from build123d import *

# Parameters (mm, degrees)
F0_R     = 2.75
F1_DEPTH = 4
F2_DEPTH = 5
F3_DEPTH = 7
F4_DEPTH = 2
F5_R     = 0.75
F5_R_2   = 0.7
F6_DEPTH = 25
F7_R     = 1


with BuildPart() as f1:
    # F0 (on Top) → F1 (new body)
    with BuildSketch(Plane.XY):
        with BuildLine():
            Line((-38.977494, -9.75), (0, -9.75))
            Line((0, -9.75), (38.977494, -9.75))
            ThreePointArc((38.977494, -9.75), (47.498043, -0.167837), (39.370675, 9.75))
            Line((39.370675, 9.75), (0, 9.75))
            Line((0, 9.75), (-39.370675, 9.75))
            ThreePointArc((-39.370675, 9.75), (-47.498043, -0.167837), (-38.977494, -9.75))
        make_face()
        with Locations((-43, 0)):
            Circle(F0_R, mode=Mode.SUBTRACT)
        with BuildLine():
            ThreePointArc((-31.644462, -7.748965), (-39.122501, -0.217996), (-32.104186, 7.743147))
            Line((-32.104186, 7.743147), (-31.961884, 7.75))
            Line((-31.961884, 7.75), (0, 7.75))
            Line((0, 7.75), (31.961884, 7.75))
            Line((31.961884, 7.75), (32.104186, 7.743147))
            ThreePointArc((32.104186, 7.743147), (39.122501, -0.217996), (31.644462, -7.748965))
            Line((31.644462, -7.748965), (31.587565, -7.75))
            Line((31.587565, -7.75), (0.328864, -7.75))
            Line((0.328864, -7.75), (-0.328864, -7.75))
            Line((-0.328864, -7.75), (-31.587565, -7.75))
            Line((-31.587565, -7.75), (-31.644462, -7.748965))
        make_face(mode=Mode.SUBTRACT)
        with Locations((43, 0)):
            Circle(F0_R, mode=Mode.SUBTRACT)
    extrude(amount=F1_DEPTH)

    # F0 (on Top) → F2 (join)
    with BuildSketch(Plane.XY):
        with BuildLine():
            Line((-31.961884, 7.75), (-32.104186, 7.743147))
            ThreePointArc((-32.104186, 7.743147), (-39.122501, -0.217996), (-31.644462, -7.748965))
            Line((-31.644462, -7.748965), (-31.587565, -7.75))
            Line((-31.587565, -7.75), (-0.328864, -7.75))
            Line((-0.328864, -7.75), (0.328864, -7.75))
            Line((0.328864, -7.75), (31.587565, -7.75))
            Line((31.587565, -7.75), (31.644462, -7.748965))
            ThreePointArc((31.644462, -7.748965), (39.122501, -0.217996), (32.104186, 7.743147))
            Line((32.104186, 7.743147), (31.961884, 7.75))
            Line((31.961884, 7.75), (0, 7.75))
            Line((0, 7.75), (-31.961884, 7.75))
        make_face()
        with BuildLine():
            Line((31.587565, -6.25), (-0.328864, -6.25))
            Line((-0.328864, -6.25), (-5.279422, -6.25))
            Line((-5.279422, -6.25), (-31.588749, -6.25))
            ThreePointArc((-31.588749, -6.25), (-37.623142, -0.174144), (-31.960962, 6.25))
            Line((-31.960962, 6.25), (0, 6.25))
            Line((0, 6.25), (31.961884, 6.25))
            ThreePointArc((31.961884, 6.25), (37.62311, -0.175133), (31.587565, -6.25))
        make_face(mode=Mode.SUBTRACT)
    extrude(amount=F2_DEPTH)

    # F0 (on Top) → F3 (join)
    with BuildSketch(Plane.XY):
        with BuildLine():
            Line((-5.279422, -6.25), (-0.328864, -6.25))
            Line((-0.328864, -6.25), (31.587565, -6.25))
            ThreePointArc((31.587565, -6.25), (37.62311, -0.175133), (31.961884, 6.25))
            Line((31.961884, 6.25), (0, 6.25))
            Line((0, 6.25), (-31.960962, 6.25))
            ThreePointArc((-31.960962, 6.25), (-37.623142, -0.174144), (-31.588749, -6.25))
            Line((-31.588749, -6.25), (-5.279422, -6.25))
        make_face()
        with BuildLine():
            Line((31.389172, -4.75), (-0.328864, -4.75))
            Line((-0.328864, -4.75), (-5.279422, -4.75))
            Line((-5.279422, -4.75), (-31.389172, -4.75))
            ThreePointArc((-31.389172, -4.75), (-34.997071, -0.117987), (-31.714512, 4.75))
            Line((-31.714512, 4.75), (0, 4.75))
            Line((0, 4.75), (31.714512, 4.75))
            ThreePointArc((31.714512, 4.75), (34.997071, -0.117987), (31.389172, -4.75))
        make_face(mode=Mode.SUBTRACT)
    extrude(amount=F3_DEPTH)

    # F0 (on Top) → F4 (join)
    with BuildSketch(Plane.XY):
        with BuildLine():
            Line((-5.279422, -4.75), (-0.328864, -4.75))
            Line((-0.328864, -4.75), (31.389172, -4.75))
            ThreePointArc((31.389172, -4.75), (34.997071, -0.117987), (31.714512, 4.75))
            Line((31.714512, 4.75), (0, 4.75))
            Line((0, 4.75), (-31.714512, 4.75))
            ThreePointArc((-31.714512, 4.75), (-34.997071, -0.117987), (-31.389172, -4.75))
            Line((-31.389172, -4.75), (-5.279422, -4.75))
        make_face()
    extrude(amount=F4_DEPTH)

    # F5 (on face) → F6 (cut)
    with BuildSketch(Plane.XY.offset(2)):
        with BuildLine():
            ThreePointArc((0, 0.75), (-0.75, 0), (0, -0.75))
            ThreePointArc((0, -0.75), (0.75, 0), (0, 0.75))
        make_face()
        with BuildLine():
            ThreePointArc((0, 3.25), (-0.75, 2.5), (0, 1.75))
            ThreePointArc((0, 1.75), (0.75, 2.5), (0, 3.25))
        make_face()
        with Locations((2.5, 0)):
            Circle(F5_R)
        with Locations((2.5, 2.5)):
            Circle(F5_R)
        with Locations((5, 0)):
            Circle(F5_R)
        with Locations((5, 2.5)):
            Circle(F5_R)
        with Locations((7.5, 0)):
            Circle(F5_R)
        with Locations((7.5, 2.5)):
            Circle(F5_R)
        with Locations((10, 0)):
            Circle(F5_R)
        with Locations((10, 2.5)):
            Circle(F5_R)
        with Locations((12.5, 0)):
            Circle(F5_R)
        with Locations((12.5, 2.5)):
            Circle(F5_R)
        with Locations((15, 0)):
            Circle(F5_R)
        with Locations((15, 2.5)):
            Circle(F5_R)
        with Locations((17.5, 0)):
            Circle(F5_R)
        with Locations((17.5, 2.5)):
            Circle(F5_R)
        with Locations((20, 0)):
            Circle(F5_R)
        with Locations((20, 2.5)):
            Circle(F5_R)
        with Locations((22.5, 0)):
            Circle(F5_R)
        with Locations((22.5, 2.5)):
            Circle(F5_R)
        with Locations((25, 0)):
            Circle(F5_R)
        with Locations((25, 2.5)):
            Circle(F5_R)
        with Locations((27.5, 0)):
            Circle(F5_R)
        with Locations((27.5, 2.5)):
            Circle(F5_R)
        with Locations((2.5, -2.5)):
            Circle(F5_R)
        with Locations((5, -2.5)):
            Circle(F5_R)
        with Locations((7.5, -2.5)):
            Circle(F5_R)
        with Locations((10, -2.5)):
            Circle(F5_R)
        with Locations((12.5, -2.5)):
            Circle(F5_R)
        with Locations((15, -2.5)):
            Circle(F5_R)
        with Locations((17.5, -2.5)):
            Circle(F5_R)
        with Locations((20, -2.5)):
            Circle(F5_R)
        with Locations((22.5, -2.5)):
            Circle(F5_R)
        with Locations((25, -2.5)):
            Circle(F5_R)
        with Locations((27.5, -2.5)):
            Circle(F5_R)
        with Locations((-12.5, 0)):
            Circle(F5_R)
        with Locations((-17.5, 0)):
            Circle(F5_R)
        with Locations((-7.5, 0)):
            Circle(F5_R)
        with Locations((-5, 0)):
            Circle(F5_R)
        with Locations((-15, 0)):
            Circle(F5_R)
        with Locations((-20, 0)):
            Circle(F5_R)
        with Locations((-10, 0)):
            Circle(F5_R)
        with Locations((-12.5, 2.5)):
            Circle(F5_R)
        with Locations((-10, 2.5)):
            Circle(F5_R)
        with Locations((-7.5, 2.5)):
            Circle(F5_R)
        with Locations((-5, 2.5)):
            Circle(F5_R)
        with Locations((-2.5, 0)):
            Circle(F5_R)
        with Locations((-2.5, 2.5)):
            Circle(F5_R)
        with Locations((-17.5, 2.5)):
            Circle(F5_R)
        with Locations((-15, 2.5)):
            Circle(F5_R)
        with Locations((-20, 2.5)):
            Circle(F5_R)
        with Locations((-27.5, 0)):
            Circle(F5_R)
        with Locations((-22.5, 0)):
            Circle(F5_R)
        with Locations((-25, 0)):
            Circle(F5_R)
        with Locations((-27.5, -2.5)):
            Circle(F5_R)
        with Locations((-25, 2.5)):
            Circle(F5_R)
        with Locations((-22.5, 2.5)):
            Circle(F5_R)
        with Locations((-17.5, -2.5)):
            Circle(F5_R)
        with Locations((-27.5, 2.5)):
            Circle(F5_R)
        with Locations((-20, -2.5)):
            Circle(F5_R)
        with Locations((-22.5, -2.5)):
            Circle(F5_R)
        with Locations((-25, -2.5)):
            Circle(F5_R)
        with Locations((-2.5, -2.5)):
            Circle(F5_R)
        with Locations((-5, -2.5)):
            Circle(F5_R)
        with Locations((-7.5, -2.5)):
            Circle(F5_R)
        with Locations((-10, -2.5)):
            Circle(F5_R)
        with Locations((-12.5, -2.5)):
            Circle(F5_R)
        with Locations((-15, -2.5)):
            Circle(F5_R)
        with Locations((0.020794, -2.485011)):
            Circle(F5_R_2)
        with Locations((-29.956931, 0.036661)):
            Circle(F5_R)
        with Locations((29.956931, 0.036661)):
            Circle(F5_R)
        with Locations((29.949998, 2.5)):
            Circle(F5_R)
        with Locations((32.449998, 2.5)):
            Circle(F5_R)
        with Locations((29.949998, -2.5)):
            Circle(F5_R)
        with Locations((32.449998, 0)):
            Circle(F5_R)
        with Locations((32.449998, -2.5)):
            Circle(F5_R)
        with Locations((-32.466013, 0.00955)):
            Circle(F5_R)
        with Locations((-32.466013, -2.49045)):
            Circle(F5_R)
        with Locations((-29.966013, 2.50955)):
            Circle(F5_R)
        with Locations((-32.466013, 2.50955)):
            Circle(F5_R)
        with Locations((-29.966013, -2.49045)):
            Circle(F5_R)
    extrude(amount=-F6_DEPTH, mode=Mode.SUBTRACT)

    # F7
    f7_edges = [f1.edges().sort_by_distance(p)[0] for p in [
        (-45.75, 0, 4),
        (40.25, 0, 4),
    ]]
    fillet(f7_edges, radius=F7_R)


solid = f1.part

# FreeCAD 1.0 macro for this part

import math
import FreeCAD as App
import Part
import Sketcher
from FreeCAD import Vector


def edges_at(feature, points):
    """Names of the edges that pass closest to the given points."""
    edges = feature.Shape.Edges
    near = lambda p: min(range(len(edges)), key=lambda i: edges[i].distToShape(Part.Vertex(*p))[0])
    return sorted({f"Edge{near(p) + 1}" for p in points})

doc = App.newDocument("Part")
body = doc.addObject("PartDesign::Body", "Body")

# Sketch on XY plane
sketch1 = body.newObject("Sketcher::SketchObject", "Sketch")
sketch1.AttachmentSupport = (doc.getObject("XY_Plane"), [""])
sketch1.MapMode = "FlatFace"
sketch1.addGeometry([
    Part.LineSegment(Vector(-38.98, -9.75, 0), Vector(38.98, -9.75, 0)),  # 0
    Part.ArcOfCircle(Part.Circle(Vector(37.63, 0.03, 0), Vector(0, 0, 1), 9.87), math.radians(-82), math.radians(80)),  # 1
    Part.LineSegment(Vector(39.37, 9.75, 0), Vector(-39.37, 9.75, 0)),  # 2
    Part.ArcOfCircle(Part.Circle(Vector(-37.63, 0.03, 0), Vector(0, 0, 1), 9.87), math.radians(100), math.radians(262)),  # 3
    Part.Circle(Vector(-43, 0, 0), Vector(0, 0, 1), 2.75),  # 4
    Part.LineSegment(Vector(-31.59, -7.75, 0), Vector(-31.64, -7.75, 0)),  # 5
    Part.ArcOfCircle(Part.Circle(Vector(-31.36, 0.01, 0), Vector(0, 0, 1), 7.77), math.radians(96), math.radians(268)),  # 6
    Part.LineSegment(Vector(-32.1, 7.74, 0), Vector(-31.96, 7.75, 0)),  # 7
    Part.LineSegment(Vector(-31.96, 7.75, 0), Vector(31.96, 7.75, 0)),  # 8
    Part.LineSegment(Vector(31.96, 7.75, 0), Vector(32.1, 7.74, 0)),  # 9
    Part.ArcOfCircle(Part.Circle(Vector(31.36, 0.01, 0), Vector(0, 0, 1), 7.77), math.radians(-88), math.radians(84)),  # 10
    Part.LineSegment(Vector(31.64, -7.75, 0), Vector(31.59, -7.75, 0)),  # 11
    Part.LineSegment(Vector(31.59, -7.75, 0), Vector(-31.59, -7.75, 0)),  # 12
    Part.Circle(Vector(43, 0, 0), Vector(0, 0, 1), 2.75),  # 13
], False)
sketch1.addConstraint([
    Sketcher.Constraint("Coincident", 0, 2, 1, 1),
    Sketcher.Constraint("Coincident", 1, 2, 2, 1),
    Sketcher.Constraint("Coincident", 2, 2, 3, 1),
    Sketcher.Constraint("Coincident", 3, 2, 0, 1),
    Sketcher.Constraint("Coincident", 5, 2, 6, 2),
    Sketcher.Constraint("Coincident", 6, 1, 7, 1),
    Sketcher.Constraint("Coincident", 7, 2, 8, 1),
    Sketcher.Constraint("Coincident", 8, 2, 9, 1),
    Sketcher.Constraint("Coincident", 9, 2, 10, 2),
    Sketcher.Constraint("Coincident", 10, 1, 11, 1),
    Sketcher.Constraint("Coincident", 11, 2, 12, 1),
    Sketcher.Constraint("Coincident", 12, 2, 5, 1),
    Sketcher.Constraint("Horizontal", 0),
    Sketcher.Constraint("Horizontal", 2),
    Sketcher.Constraint("Horizontal", 8),
    Sketcher.Constraint("Horizontal", 12),
    Sketcher.Constraint("Equal", 1, 3),
    Sketcher.Constraint("Equal", 6, 10),
    Sketcher.Constraint("Equal", 4, 13),
    Sketcher.Constraint("Symmetric", 4, 3, 13, 3, -1, 1),
    Sketcher.Constraint("Symmetric", 1, 3, 3, 3, -2),
    Sketcher.Constraint("Symmetric", 6, 3, 10, 3, -2),
    Sketcher.Constraint("PointOnObject", 4, 3, -1),
    Sketcher.Constraint("Horizontal", 6, 1, 9, 2),
    Sketcher.Constraint("Horizontal", 5, 2, 10, 1),
    Sketcher.Constraint("Equal", 7, 9),
    Sketcher.Constraint("Equal", 5, 11),
    Sketcher.Constraint("Diameter", 4, 5.5),
    Sketcher.Constraint("DistanceX", 4, 3, -1, 1, 43.0),
    Sketcher.Constraint("DistanceY", 7, 2, 2, 2, 2.0),
    Sketcher.Constraint("DistanceY", 0, 2, 11, 2, 2.0),
    Sketcher.Constraint("DistanceY", 0, 2, 1, 2, 19.5),
    Sketcher.Constraint("DistanceY", 0, 2, -1, 1, 9.75),
    Sketcher.Constraint("Radius", 1, 9.87416),
    Sketcher.Constraint("Radius", 6, 7.766573),
    Sketcher.Constraint("DistanceX", 0, 1, 0, 2, 77.954988),
    Sketcher.Constraint("DistanceX", 2, 2, 2, 1, 78.74135),
    Sketcher.Constraint("DistanceX", 8, 1, 8, 2, 63.923768),
    Sketcher.Constraint("DistanceX", 12, 2, 12, 1, 63.17513),
    Sketcher.Constraint("DistanceX", 8, 2, 9, 2, 0.142302),
    Sketcher.Constraint("DistanceX", -1, 1, 10, 1, 31.644462),
    Sketcher.Constraint("DistanceX", 6, 3, 10, 3, 62.718691),
    Sketcher.Constraint("DistanceY", 5, 2, 3, 3, 7.780181),
])
pad1 = body.newObject("PartDesign::Pad", "Pad")
pad1.Profile = sketch1
pad1.Length = 4

# Sketch on XY plane
sketch2 = body.newObject("Sketcher::SketchObject", "Sketch001")
sketch2.AttachmentSupport = (doc.getObject("XY_Plane"), [""])
sketch2.MapMode = "FlatFace"
sketch2.addGeometry([
    Part.LineSegment(Vector(-31.96, 7.75, 0), Vector(-32.1, 7.74, 0)),  # 0
    Part.ArcOfCircle(Part.Circle(Vector(-31.36, 0.01, 0), Vector(0, 0, 1), 7.77), math.radians(96), math.radians(268)),  # 1
    Part.LineSegment(Vector(-31.64, -7.75, 0), Vector(-31.59, -7.75, 0)),  # 2
    Part.LineSegment(Vector(-31.59, -7.75, 0), Vector(31.59, -7.75, 0)),  # 3
    Part.LineSegment(Vector(31.59, -7.75, 0), Vector(31.64, -7.75, 0)),  # 4
    Part.ArcOfCircle(Part.Circle(Vector(31.36, 0.01, 0), Vector(0, 0, 1), 7.77), math.radians(-88), math.radians(84)),  # 5
    Part.LineSegment(Vector(32.1, 7.74, 0), Vector(31.96, 7.75, 0)),  # 6
    Part.LineSegment(Vector(31.96, 7.75, 0), Vector(-31.96, 7.75, 0)),  # 7
    Part.ArcOfCircle(Part.Circle(Vector(31.36, 0.01, 0), Vector(0, 0, 1), 6.27), math.radians(-88), math.radians(84)),  # 8
    Part.LineSegment(Vector(31.59, -6.25, 0), Vector(-31.59, -6.25, 0)),  # 9
    Part.ArcOfCircle(Part.Circle(Vector(-31.36, 0.01, 0), Vector(0, 0, 1), 6.27), math.radians(96), math.radians(268)),  # 10
    Part.LineSegment(Vector(-31.96, 6.25, 0), Vector(31.96, 6.25, 0)),  # 11
], False)
sketch2.addConstraint([
    Sketcher.Constraint("Coincident", 0, 2, 1, 1),
    Sketcher.Constraint("Coincident", 1, 2, 2, 1),
    Sketcher.Constraint("Coincident", 2, 2, 3, 1),
    Sketcher.Constraint("Coincident", 3, 2, 4, 1),
    Sketcher.Constraint("Coincident", 4, 2, 5, 1),
    Sketcher.Constraint("Coincident", 5, 2, 6, 1),
    Sketcher.Constraint("Coincident", 6, 2, 7, 1),
    Sketcher.Constraint("Coincident", 7, 2, 0, 1),
    Sketcher.Constraint("Coincident", 8, 1, 9, 1),
    Sketcher.Constraint("Coincident", 9, 2, 10, 2),
    Sketcher.Constraint("Coincident", 10, 1, 11, 1),
    Sketcher.Constraint("Coincident", 11, 2, 8, 2),
    Sketcher.Constraint("Horizontal", 3),
    Sketcher.Constraint("Horizontal", 7),
    Sketcher.Constraint("Horizontal", 9),
    Sketcher.Constraint("Horizontal", 11),
    Sketcher.Constraint("Coincident", 10, 3, 1, 3),
    Sketcher.Constraint("Equal", 1, 5),
    Sketcher.Constraint("Symmetric", 1, 3, 5, 3, -2),
    Sketcher.Constraint("Horizontal", 1, 2, 4, 2),
    Sketcher.Constraint("Horizontal", 0, 2, 5, 2),
    Sketcher.Constraint("Vertical", 3, 2, 8, 1),
    Sketcher.Constraint("Vertical", 6, 2, 11, 2),
    Sketcher.Constraint("Equal", 2, 4),
    Sketcher.Constraint("Equal", 0, 6),
    Sketcher.Constraint("DistanceY", 3, 2, 6, 2, 15.5),
    Sketcher.Constraint("DistanceY", 3, 2, 8, 1, 1.5),
    Sketcher.Constraint("DistanceY", 10, 1, 7, 2, 1.5),
    Sketcher.Constraint("DistanceY", 2, 2, -1, 1, 7.75),
    Sketcher.Constraint("Radius", 1, 7.766573),
    Sketcher.Constraint("Radius", 8, 6.266597),
    Sketcher.Constraint("Radius", 10, 6.266573),
    Sketcher.Constraint("DistanceX", 3, 1, 3, 2, 63.17513),
    Sketcher.Constraint("DistanceX", 7, 2, 7, 1, 63.923768),
    Sketcher.Constraint("DistanceX", 0, 2, 7, 2, 0.142302),
    Sketcher.Constraint("DistanceX", 9, 2, 9, 1, 63.176314),
    Sketcher.Constraint("DistanceX", 11, 1, 11, 2, 63.922846),
    Sketcher.Constraint("DistanceX", 1, 2, -1, 1, 31.644462),
])
pad2 = body.newObject("PartDesign::Pad", "Pad001")
pad2.Profile = sketch2
pad2.Length = 5

# Sketch on XY plane
sketch3 = body.newObject("Sketcher::SketchObject", "Sketch002")
sketch3.AttachmentSupport = (doc.getObject("XY_Plane"), [""])
sketch3.MapMode = "FlatFace"
sketch3.addGeometry([
    Part.ArcOfCircle(Part.Circle(Vector(31.4, 0, 0), Vector(0, 0, 1), 6.3), math.radians(-88), math.radians(84)),  # 0
    Part.LineSegment(Vector(32, 6.2, 0), Vector(-32, 6.2, 0)),  # 1
    Part.ArcOfCircle(Part.Circle(Vector(-31.4, 0, 0), Vector(0, 0, 1), 6.3), math.radians(96), math.radians(268)),  # 2
    Part.LineSegment(Vector(-31.6, -6.2, 0), Vector(31.6, -6.2, 0)),  # 3
    Part.ArcOfCircle(Part.Circle(Vector(30, 0.1, 0), Vector(0, 0, 1), 5), math.radians(-74), math.radians(70)),  # 4
    Part.LineSegment(Vector(31.4, -4.8, 0), Vector(-31.4, -4.8, 0)),  # 5
    Part.ArcOfCircle(Part.Circle(Vector(-30, 0.1, 0), Vector(0, 0, 1), 5), math.radians(110), math.radians(254)),  # 6
    Part.LineSegment(Vector(-31.7, 4.8, 0), Vector(31.7, 4.8, 0)),  # 7
], False)
sketch3.addConstraint([
    Sketcher.Constraint("Coincident", 0, 2, 1, 1),
    Sketcher.Constraint("Coincident", 1, 2, 2, 1),
    Sketcher.Constraint("Coincident", 2, 2, 3, 1),
    Sketcher.Constraint("Coincident", 3, 2, 0, 1),
    Sketcher.Constraint("Coincident", 4, 1, 5, 1),
    Sketcher.Constraint("Coincident", 5, 2, 6, 2),
    Sketcher.Constraint("Coincident", 6, 1, 7, 1),
    Sketcher.Constraint("Coincident", 7, 2, 4, 2),
    Sketcher.Constraint("Horizontal", 1),
    Sketcher.Constraint("Horizontal", 3),
    Sketcher.Constraint("Horizontal", 5),
    Sketcher.Constraint("Horizontal", 7),
    Sketcher.Constraint("Equal", 4, 6),
    Sketcher.Constraint("Symmetric", 4, 3, 6, 3, -2),
    Sketcher.Constraint("Radius", 4, 5.0),
    Sketcher.Constraint("DistanceX", -1, 1, 4, 3, 30.000001),
    Sketcher.Constraint("DistanceY", 4, 1, 0, 2, 11.0),
    Sketcher.Constraint("DistanceY", 2, 2, 6, 1, 11.0),
    Sketcher.Constraint("DistanceY", 2, 2, 1, 2, 12.5),
    Sketcher.Constraint("DistanceY", -1, 1, 0, 2, 6.25),
    Sketcher.Constraint("Radius", 0, 6.266597),
    Sketcher.Constraint("Radius", 2, 6.266573),
    Sketcher.Constraint("DistanceX", 1, 2, 1, 1, 63.922846),
    Sketcher.Constraint("DistanceX", 3, 1, 3, 2, 63.176314),
    Sketcher.Constraint("DistanceX", 5, 2, 5, 1, 62.778344),
    Sketcher.Constraint("DistanceX", -1, 1, 0, 3, 31.35932),
    Sketcher.Constraint("DistanceY", -1, 1, 0, 3, 0.012439),
])
pad3 = body.newObject("PartDesign::Pad", "Pad002")
pad3.Profile = sketch3
pad3.Length = 7

# Sketch on XY plane
sketch4 = body.newObject("Sketcher::SketchObject", "Sketch003")
sketch4.AttachmentSupport = (doc.getObject("XY_Plane"), [""])
sketch4.MapMode = "FlatFace"
sketch4.addGeometry([
    Part.ArcOfCircle(Part.Circle(Vector(30, 0.1, 0), Vector(0, 0, 1), 5), math.radians(-74), math.radians(70)),
    Part.LineSegment(Vector(31.7, 4.8, 0), Vector(-31.7, 4.8, 0)),
    Part.ArcOfCircle(Part.Circle(Vector(-30, 0.1, 0), Vector(0, 0, 1), 5), math.radians(110), math.radians(254)),
    Part.LineSegment(Vector(-31.4, -4.8, 0), Vector(31.4, -4.8, 0)),
], False)
sketch4.addConstraint([
    Sketcher.Constraint("Coincident", 0, 2, 1, 1),
    Sketcher.Constraint("Coincident", 1, 2, 2, 1),
    Sketcher.Constraint("Coincident", 2, 2, 3, 1),
    Sketcher.Constraint("Coincident", 3, 2, 0, 1),
    Sketcher.Constraint("Horizontal", 1),
    Sketcher.Constraint("Horizontal", 3),
    Sketcher.Constraint("Equal", 0, 2),
    Sketcher.Constraint("Symmetric", 0, 3, 2, 3, -2),
    Sketcher.Constraint("Radius", 0, 5.0),
    Sketcher.Constraint("DistanceX", -1, 1, 0, 3, 30.000001),
    Sketcher.Constraint("DistanceY", 2, 2, 1, 2, 9.5),
    Sketcher.Constraint("DistanceY", -1, 1, 0, 2, 4.75),
    Sketcher.Constraint("DistanceX", 1, 2, 1, 1, 63.429024),
])
pad4 = body.newObject("PartDesign::Pad", "Pad003")
pad4.Profile = sketch4
pad4.Length = 2

# Sketch on XY plane
sketch5 = body.newObject("Sketcher::SketchObject", "Sketch004")
sketch5.AttachmentSupport = (doc.getObject("XY_Plane"), [""])
sketch5.MapMode = "FlatFace"
sketch5.AttachmentOffset = App.Placement(Vector(0, 0, 2), App.Rotation())
sketch5.addGeometry([
    Part.Circle(Vector(0, 0, 0), Vector(0, 0, 1), 0.8),  # 0
    Part.Circle(Vector(0, 2.5, 0), Vector(0, 0, 1), 0.8),  # 1
    Part.Circle(Vector(2.5, 0, 0), Vector(0, 0, 1), 0.8),  # 2
    Part.Circle(Vector(2.5, 2.5, 0), Vector(0, 0, 1), 0.8),  # 3
    Part.Circle(Vector(5, 0, 0), Vector(0, 0, 1), 0.8),  # 4
    Part.Circle(Vector(5, 2.5, 0), Vector(0, 0, 1), 0.8),  # 5
    Part.Circle(Vector(7.5, 0, 0), Vector(0, 0, 1), 0.8),  # 6
    Part.Circle(Vector(7.5, 2.5, 0), Vector(0, 0, 1), 0.8),  # 7
    Part.Circle(Vector(10, 0, 0), Vector(0, 0, 1), 0.8),  # 8
    Part.Circle(Vector(10, 2.5, 0), Vector(0, 0, 1), 0.8),  # 9
    Part.Circle(Vector(12.5, 0, 0), Vector(0, 0, 1), 0.8),  # 10
    Part.Circle(Vector(12.5, 2.5, 0), Vector(0, 0, 1), 0.8),  # 11
    Part.Circle(Vector(15, 0, 0), Vector(0, 0, 1), 0.8),  # 12
    Part.Circle(Vector(15, 2.5, 0), Vector(0, 0, 1), 0.8),  # 13
    Part.Circle(Vector(17.5, 0, 0), Vector(0, 0, 1), 0.8),  # 14
    Part.Circle(Vector(17.5, 2.5, 0), Vector(0, 0, 1), 0.8),  # 15
    Part.Circle(Vector(20, 0, 0), Vector(0, 0, 1), 0.8),  # 16
    Part.Circle(Vector(20, 2.5, 0), Vector(0, 0, 1), 0.8),  # 17
    Part.Circle(Vector(22.5, 0, 0), Vector(0, 0, 1), 0.8),  # 18
    Part.Circle(Vector(22.5, 2.5, 0), Vector(0, 0, 1), 0.8),  # 19
    Part.Circle(Vector(25, 0, 0), Vector(0, 0, 1), 0.8),  # 20
    Part.Circle(Vector(25, 2.5, 0), Vector(0, 0, 1), 0.8),  # 21
    Part.Circle(Vector(27.5, 0, 0), Vector(0, 0, 1), 0.8),  # 22
    Part.Circle(Vector(27.5, 2.5, 0), Vector(0, 0, 1), 0.8),  # 23
    Part.Circle(Vector(2.5, -2.5, 0), Vector(0, 0, 1), 0.8),  # 24
    Part.Circle(Vector(5, -2.5, 0), Vector(0, 0, 1), 0.8),  # 25
    Part.Circle(Vector(7.5, -2.5, 0), Vector(0, 0, 1), 0.8),  # 26
    Part.Circle(Vector(10, -2.5, 0), Vector(0, 0, 1), 0.8),  # 27
    Part.Circle(Vector(12.5, -2.5, 0), Vector(0, 0, 1), 0.8),  # 28
    Part.Circle(Vector(15, -2.5, 0), Vector(0, 0, 1), 0.8),  # 29
    Part.Circle(Vector(17.5, -2.5, 0), Vector(0, 0, 1), 0.8),  # 30
    Part.Circle(Vector(20, -2.5, 0), Vector(0, 0, 1), 0.8),  # 31
    Part.Circle(Vector(22.5, -2.5, 0), Vector(0, 0, 1), 0.8),  # 32
    Part.Circle(Vector(25, -2.5, 0), Vector(0, 0, 1), 0.8),  # 33
    Part.Circle(Vector(27.5, -2.5, 0), Vector(0, 0, 1), 0.8),  # 34
    Part.Circle(Vector(-12.5, 0, 0), Vector(0, 0, 1), 0.8),  # 35
    Part.Circle(Vector(-17.5, 0, 0), Vector(0, 0, 1), 0.8),  # 36
    Part.Circle(Vector(-7.5, 0, 0), Vector(0, 0, 1), 0.8),  # 37
    Part.Circle(Vector(-5, 0, 0), Vector(0, 0, 1), 0.8),  # 38
    Part.Circle(Vector(-15, 0, 0), Vector(0, 0, 1), 0.8),  # 39
    Part.Circle(Vector(-20, 0, 0), Vector(0, 0, 1), 0.8),  # 40
    Part.Circle(Vector(-10, 0, 0), Vector(0, 0, 1), 0.8),  # 41
    Part.Circle(Vector(-12.5, 2.5, 0), Vector(0, 0, 1), 0.8),  # 42
    Part.Circle(Vector(-10, 2.5, 0), Vector(0, 0, 1), 0.8),  # 43
    Part.Circle(Vector(-7.5, 2.5, 0), Vector(0, 0, 1), 0.8),  # 44
    Part.Circle(Vector(-5, 2.5, 0), Vector(0, 0, 1), 0.8),  # 45
    Part.Circle(Vector(-2.5, 0, 0), Vector(0, 0, 1), 0.8),  # 46
    Part.Circle(Vector(-2.5, 2.5, 0), Vector(0, 0, 1), 0.8),  # 47
    Part.Circle(Vector(-17.5, 2.5, 0), Vector(0, 0, 1), 0.8),  # 48
    Part.Circle(Vector(-15, 2.5, 0), Vector(0, 0, 1), 0.8),  # 49
    Part.Circle(Vector(-20, 2.5, 0), Vector(0, 0, 1), 0.8),  # 50
    Part.Circle(Vector(-27.5, 0, 0), Vector(0, 0, 1), 0.8),  # 51
    Part.Circle(Vector(-22.5, 0, 0), Vector(0, 0, 1), 0.8),  # 52
    Part.Circle(Vector(-25, 0, 0), Vector(0, 0, 1), 0.8),  # 53
    Part.Circle(Vector(-27.5, -2.5, 0), Vector(0, 0, 1), 0.8),  # 54
    Part.Circle(Vector(-25, 2.5, 0), Vector(0, 0, 1), 0.8),  # 55
    Part.Circle(Vector(-22.5, 2.5, 0), Vector(0, 0, 1), 0.8),  # 56
    Part.Circle(Vector(-17.5, -2.5, 0), Vector(0, 0, 1), 0.8),  # 57
    Part.Circle(Vector(-27.5, 2.5, 0), Vector(0, 0, 1), 0.8),  # 58
    Part.Circle(Vector(-20, -2.5, 0), Vector(0, 0, 1), 0.8),  # 59
    Part.Circle(Vector(-22.5, -2.5, 0), Vector(0, 0, 1), 0.8),  # 60
    Part.Circle(Vector(-25, -2.5, 0), Vector(0, 0, 1), 0.8),  # 61
    Part.Circle(Vector(-2.5, -2.5, 0), Vector(0, 0, 1), 0.8),  # 62
    Part.Circle(Vector(-5, -2.5, 0), Vector(0, 0, 1), 0.8),  # 63
    Part.Circle(Vector(-7.5, -2.5, 0), Vector(0, 0, 1), 0.8),  # 64
    Part.Circle(Vector(-10, -2.5, 0), Vector(0, 0, 1), 0.8),  # 65
    Part.Circle(Vector(-12.5, -2.5, 0), Vector(0, 0, 1), 0.8),  # 66
    Part.Circle(Vector(-15, -2.5, 0), Vector(0, 0, 1), 0.8),  # 67
    Part.Circle(Vector(0, -2.5, 0), Vector(0, 0, 1), 0.7),  # 68
    Part.Circle(Vector(-30, 0, 0), Vector(0, 0, 1), 0.8),  # 69
    Part.Circle(Vector(30, 0, 0), Vector(0, 0, 1), 0.8),  # 70
    Part.Circle(Vector(29.9, 2.5, 0), Vector(0, 0, 1), 0.8),  # 71
    Part.Circle(Vector(32.4, 2.5, 0), Vector(0, 0, 1), 0.8),  # 72
    Part.Circle(Vector(29.9, -2.5, 0), Vector(0, 0, 1), 0.8),  # 73
    Part.Circle(Vector(32.4, 0, 0), Vector(0, 0, 1), 0.8),  # 74
    Part.Circle(Vector(32.4, -2.5, 0), Vector(0, 0, 1), 0.8),  # 75
    Part.Circle(Vector(-32.5, 0, 0), Vector(0, 0, 1), 0.8),  # 76
    Part.Circle(Vector(-32.5, -2.5, 0), Vector(0, 0, 1), 0.8),  # 77
    Part.Circle(Vector(-30, 2.5, 0), Vector(0, 0, 1), 0.8),  # 78
    Part.Circle(Vector(-32.5, 2.5, 0), Vector(0, 0, 1), 0.8),  # 79
    Part.Circle(Vector(-30, -2.5, 0), Vector(0, 0, 1), 0.8),  # 80
], False)
sketch5.addConstraint([
    Sketcher.Constraint("Coincident", 0, 3, -1, 1),
    Sketcher.Constraint("Equal", 0, 1),
    Sketcher.Constraint("Equal", 1, 2),
    Sketcher.Constraint("Equal", 2, 3),
    Sketcher.Constraint("Equal", 3, 4),
    Sketcher.Constraint("Equal", 4, 5),
    Sketcher.Constraint("Equal", 5, 6),
    Sketcher.Constraint("Equal", 6, 7),
    Sketcher.Constraint("Equal", 7, 8),
    Sketcher.Constraint("Equal", 8, 9),
    Sketcher.Constraint("Equal", 9, 10),
    Sketcher.Constraint("Equal", 10, 11),
    Sketcher.Constraint("Equal", 11, 12),
    Sketcher.Constraint("Equal", 12, 13),
    Sketcher.Constraint("Equal", 13, 14),
    Sketcher.Constraint("Equal", 14, 15),
    Sketcher.Constraint("Equal", 15, 16),
    Sketcher.Constraint("Equal", 16, 17),
    Sketcher.Constraint("Equal", 17, 18),
    Sketcher.Constraint("Equal", 18, 19),
    Sketcher.Constraint("Equal", 19, 20),
    Sketcher.Constraint("Equal", 20, 21),
    Sketcher.Constraint("Equal", 21, 22),
    Sketcher.Constraint("Equal", 22, 23),
    Sketcher.Constraint("Equal", 23, 24),
    Sketcher.Constraint("Equal", 24, 25),
    Sketcher.Constraint("Equal", 25, 26),
    Sketcher.Constraint("Equal", 26, 27),
    Sketcher.Constraint("Equal", 27, 28),
    Sketcher.Constraint("Equal", 28, 29),
    Sketcher.Constraint("Equal", 29, 30),
    Sketcher.Constraint("Equal", 30, 31),
    Sketcher.Constraint("Equal", 31, 32),
    Sketcher.Constraint("Equal", 32, 33),
    Sketcher.Constraint("Equal", 33, 34),
    Sketcher.Constraint("Equal", 34, 35),
    Sketcher.Constraint("Equal", 35, 36),
    Sketcher.Constraint("Equal", 36, 37),
    Sketcher.Constraint("Equal", 37, 38),
    Sketcher.Constraint("Equal", 38, 39),
    Sketcher.Constraint("Equal", 39, 40),
    Sketcher.Constraint("Equal", 40, 41),
    Sketcher.Constraint("Equal", 41, 42),
    Sketcher.Constraint("Equal", 42, 43),
    Sketcher.Constraint("Equal", 43, 44),
    Sketcher.Constraint("Equal", 44, 45),
    Sketcher.Constraint("Equal", 45, 46),
    Sketcher.Constraint("Equal", 46, 47),
    Sketcher.Constraint("Equal", 47, 48),
    Sketcher.Constraint("Equal", 48, 49),
    Sketcher.Constraint("Equal", 49, 50),
    Sketcher.Constraint("Equal", 50, 51),
    Sketcher.Constraint("Equal", 51, 52),
    Sketcher.Constraint("Equal", 52, 53),
    Sketcher.Constraint("Equal", 53, 54),
    Sketcher.Constraint("Equal", 54, 55),
    Sketcher.Constraint("Equal", 55, 56),
    Sketcher.Constraint("Equal", 56, 57),
    Sketcher.Constraint("Equal", 57, 58),
    Sketcher.Constraint("Equal", 58, 59),
    Sketcher.Constraint("Equal", 59, 60),
    Sketcher.Constraint("Equal", 60, 61),
    Sketcher.Constraint("Equal", 61, 62),
    Sketcher.Constraint("Equal", 62, 63),
    Sketcher.Constraint("Equal", 63, 64),
    Sketcher.Constraint("Equal", 64, 65),
    Sketcher.Constraint("Equal", 65, 66),
    Sketcher.Constraint("Equal", 66, 67),
    Sketcher.Constraint("Equal", 67, 69),
    Sketcher.Constraint("Equal", 69, 70),
    Sketcher.Constraint("Equal", 70, 71),
    Sketcher.Constraint("Equal", 71, 72),
    Sketcher.Constraint("Equal", 72, 73),
    Sketcher.Constraint("Equal", 73, 74),
    Sketcher.Constraint("Equal", 74, 75),
    Sketcher.Constraint("Equal", 75, 76),
    Sketcher.Constraint("Equal", 76, 77),
    Sketcher.Constraint("Equal", 77, 78),
    Sketcher.Constraint("Equal", 78, 79),
    Sketcher.Constraint("Equal", 79, 80),
    Sketcher.Constraint("Symmetric", 10, 3, 35, 3, -1, 1),
    Sketcher.Constraint("Symmetric", 14, 3, 36, 3, -1, 1),
    Sketcher.Constraint("Symmetric", 6, 3, 37, 3, -1, 1),
    Sketcher.Constraint("Symmetric", 4, 3, 38, 3, -1, 1),
    Sketcher.Constraint("Symmetric", 12, 3, 39, 3, -1, 1),
    Sketcher.Constraint("Symmetric", 16, 3, 40, 3, -1, 1),
    Sketcher.Constraint("Symmetric", 8, 3, 41, 3, -1, 1),
    Sketcher.Constraint("Symmetric", 28, 3, 42, 3, -1, 1),
    Sketcher.Constraint("Symmetric", 27, 3, 43, 3, -1, 1),
    Sketcher.Constraint("Symmetric", 26, 3, 44, 3, -1, 1),
    Sketcher.Constraint("Symmetric", 25, 3, 45, 3, -1, 1),
    Sketcher.Constraint("Symmetric", 2, 3, 46, 3, -1, 1),
    Sketcher.Constraint("Symmetric", 24, 3, 47, 3, -1, 1),
    Sketcher.Constraint("Symmetric", 30, 3, 48, 3, -1, 1),
    Sketcher.Constraint("Symmetric", 29, 3, 49, 3, -1, 1),
    Sketcher.Constraint("Symmetric", 31, 3, 50, 3, -1, 1),
    Sketcher.Constraint("Symmetric", 22, 3, 51, 3, -1, 1),
    Sketcher.Constraint("Symmetric", 18, 3, 52, 3, -1, 1),
    Sketcher.Constraint("Symmetric", 20, 3, 53, 3, -1, 1),
    Sketcher.Constraint("Symmetric", 23, 3, 54, 3, -1, 1),
    Sketcher.Constraint("Symmetric", 33, 3, 55, 3, -1, 1),
    Sketcher.Constraint("Symmetric", 32, 3, 56, 3, -1, 1),
    Sketcher.Constraint("Symmetric", 15, 3, 57, 3, -1, 1),
    Sketcher.Constraint("Symmetric", 34, 3, 58, 3, -1, 1),
    Sketcher.Constraint("Symmetric", 17, 3, 59, 3, -1, 1),
    Sketcher.Constraint("Symmetric", 19, 3, 60, 3, -1, 1),
    Sketcher.Constraint("Symmetric", 21, 3, 61, 3, -1, 1),
    Sketcher.Constraint("Symmetric", 3, 3, 62, 3, -1, 1),
    Sketcher.Constraint("Symmetric", 5, 3, 63, 3, -1, 1),
    Sketcher.Constraint("Symmetric", 7, 3, 64, 3, -1, 1),
    Sketcher.Constraint("Symmetric", 9, 3, 65, 3, -1, 1),
    Sketcher.Constraint("Symmetric", 11, 3, 66, 3, -1, 1),
    Sketcher.Constraint("Symmetric", 13, 3, 67, 3, -1, 1),
    Sketcher.Constraint("Symmetric", 11, 3, 42, 3, -2),
    Sketcher.Constraint("Symmetric", 9, 3, 43, 3, -2),
    Sketcher.Constraint("Symmetric", 7, 3, 44, 3, -2),
    Sketcher.Constraint("Symmetric", 5, 3, 45, 3, -2),
    Sketcher.Constraint("Symmetric", 3, 3, 47, 3, -2),
    Sketcher.Constraint("Symmetric", 15, 3, 48, 3, -2),
    Sketcher.Constraint("Symmetric", 13, 3, 49, 3, -2),
    Sketcher.Constraint("Symmetric", 17, 3, 50, 3, -2),
    Sketcher.Constraint("Symmetric", 34, 3, 54, 3, -2),
    Sketcher.Constraint("Symmetric", 21, 3, 55, 3, -2),
    Sketcher.Constraint("Symmetric", 19, 3, 56, 3, -2),
    Sketcher.Constraint("Symmetric", 69, 3, 70, 3, -2),
    Sketcher.Constraint("Symmetric", 71, 3, 73, 3, -1),
    Sketcher.Constraint("Symmetric", 72, 3, 75, 3, -1),
    Sketcher.Constraint("PointOnObject", 1, 3, -2),
    Sketcher.Constraint("PointOnObject", 2, 3, -1),
    Sketcher.Constraint("PointOnObject", 4, 3, -1),
    Sketcher.Constraint("PointOnObject", 6, 3, -1),
    Sketcher.Constraint("PointOnObject", 8, 3, -1),
    Sketcher.Constraint("PointOnObject", 10, 3, -1),
    Sketcher.Constraint("PointOnObject", 12, 3, -1),
    Sketcher.Constraint("PointOnObject", 14, 3, -1),
    Sketcher.Constraint("PointOnObject", 16, 3, -1),
    Sketcher.Constraint("PointOnObject", 18, 3, -1),
    Sketcher.Constraint("PointOnObject", 20, 3, -1),
    Sketcher.Constraint("PointOnObject", 22, 3, -1),
    Sketcher.Constraint("PointOnObject", 74, 3, -1),
    Sketcher.Constraint("Horizontal", 1, 3, 3, 3),
    Sketcher.Constraint("Horizontal", 3, 3, 5, 3),
    Sketcher.Constraint("Horizontal", 5, 3, 7, 3),
    Sketcher.Constraint("Horizontal", 7, 3, 9, 3),
    Sketcher.Constraint("Horizontal", 9, 3, 11, 3),
    Sketcher.Constraint("Horizontal", 11, 3, 13, 3),
    Sketcher.Constraint("Horizontal", 13, 3, 15, 3),
    Sketcher.Constraint("Horizontal", 15, 3, 17, 3),
    Sketcher.Constraint("Horizontal", 17, 3, 19, 3),
    Sketcher.Constraint("Horizontal", 19, 3, 21, 3),
    Sketcher.Constraint("Horizontal", 21, 3, 23, 3),
    Sketcher.Constraint("Horizontal", 58, 3, 71, 3),
    Sketcher.Constraint("Horizontal", 71, 3, 72, 3),
    Sketcher.Constraint("Horizontal", 78, 3, 79, 3),
    Sketcher.Constraint("Horizontal", 77, 3, 80, 3),
    Sketcher.Constraint("Vertical", 2, 3, 3, 3),
    Sketcher.Constraint("Vertical", 4, 3, 5, 3),
    Sketcher.Constraint("Vertical", 6, 3, 7, 3),
    Sketcher.Constraint("Vertical", 8, 3, 9, 3),
    Sketcher.Constraint("Vertical", 10, 3, 11, 3),
    Sketcher.Constraint("Vertical", 12, 3, 13, 3),
    Sketcher.Constraint("Vertical", 14, 3, 15, 3),
    Sketcher.Constraint("Vertical", 16, 3, 17, 3),
    Sketcher.Constraint("Vertical", 18, 3, 19, 3),
    Sketcher.Constraint("Vertical", 20, 3, 21, 3),
    Sketcher.Constraint("Vertical", 22, 3, 23, 3),
    Sketcher.Constraint("Vertical", 72, 3, 74, 3),
    Sketcher.Constraint("Vertical", 76, 3, 77, 3),
    Sketcher.Constraint("Vertical", 77, 3, 79, 3),
    Sketcher.Constraint("Vertical", 78, 3, 80, 3),
    Sketcher.Constraint("Diameter", 0, 1.5),
    Sketcher.Constraint("Diameter", 68, 1.4),
    Sketcher.Constraint("DistanceX", -1, 1, 4, 3, 5.0),
    Sketcher.Constraint("DistanceX", -1, 1, 8, 3, 10.0),
    Sketcher.Constraint("DistanceX", -1, 1, 12, 3, 15.0),
    Sketcher.Constraint("DistanceX", -1, 1, 16, 3, 20.0),
    Sketcher.Constraint("DistanceX", -1, 1, 20, 3, 25.0),
    Sketcher.Constraint("DistanceY", -1, 1, 1, 3, 2.5),
    Sketcher.Constraint("DistanceX", -1, 1, 2, 3, 2.5),
    Sketcher.Constraint("DistanceX", -1, 1, 6, 3, 7.5),
    Sketcher.Constraint("DistanceX", -1, 1, 10, 3, 12.5),
    Sketcher.Constraint("DistanceX", -1, 1, 14, 3, 17.5),
    Sketcher.Constraint("DistanceX", -1, 1, 18, 3, 22.5),
    Sketcher.Constraint("DistanceX", -1, 1, 22, 3, 27.5),
    Sketcher.Constraint("DistanceX", -1, 1, 71, 3, 29.949998),
    Sketcher.Constraint("DistanceY", 68, 3, -1, 1, 2.485011),
    Sketcher.Constraint("DistanceX", 69, 3, -1, 1, 29.956931),
    Sketcher.Constraint("DistanceY", -1, 1, 69, 3, 0.036661),
    Sketcher.Constraint("DistanceY", -1, 1, 76, 3, 0.00955),
    Sketcher.Constraint("DistanceY", 77, 3, -1, 1, 2.49045),
    Sketcher.Constraint("DistanceY", -1, 1, 78, 3, 2.50955),
    Sketcher.Constraint("DistanceX", -1, 1, 68, 3, 0.020794),
    Sketcher.Constraint("DistanceX", -1, 1, 72, 3, 32.449998),
    Sketcher.Constraint("DistanceX", 76, 3, -1, 1, 32.466013),
    Sketcher.Constraint("DistanceX", 78, 3, -1, 1, 29.966013),
])
pocket1 = body.newObject("PartDesign::Pocket", "Pocket")
pocket1.Profile = sketch5
pocket1.Length = 25
doc.recompute()

fillet = body.newObject("PartDesign::Fillet", "Fillet")
fillet.Base = (pocket1, edges_at(pocket1, [(-45.75, 0, 4), (40.25, 0, 4)]))
fillet.Radius = 1

doc.recompute()
